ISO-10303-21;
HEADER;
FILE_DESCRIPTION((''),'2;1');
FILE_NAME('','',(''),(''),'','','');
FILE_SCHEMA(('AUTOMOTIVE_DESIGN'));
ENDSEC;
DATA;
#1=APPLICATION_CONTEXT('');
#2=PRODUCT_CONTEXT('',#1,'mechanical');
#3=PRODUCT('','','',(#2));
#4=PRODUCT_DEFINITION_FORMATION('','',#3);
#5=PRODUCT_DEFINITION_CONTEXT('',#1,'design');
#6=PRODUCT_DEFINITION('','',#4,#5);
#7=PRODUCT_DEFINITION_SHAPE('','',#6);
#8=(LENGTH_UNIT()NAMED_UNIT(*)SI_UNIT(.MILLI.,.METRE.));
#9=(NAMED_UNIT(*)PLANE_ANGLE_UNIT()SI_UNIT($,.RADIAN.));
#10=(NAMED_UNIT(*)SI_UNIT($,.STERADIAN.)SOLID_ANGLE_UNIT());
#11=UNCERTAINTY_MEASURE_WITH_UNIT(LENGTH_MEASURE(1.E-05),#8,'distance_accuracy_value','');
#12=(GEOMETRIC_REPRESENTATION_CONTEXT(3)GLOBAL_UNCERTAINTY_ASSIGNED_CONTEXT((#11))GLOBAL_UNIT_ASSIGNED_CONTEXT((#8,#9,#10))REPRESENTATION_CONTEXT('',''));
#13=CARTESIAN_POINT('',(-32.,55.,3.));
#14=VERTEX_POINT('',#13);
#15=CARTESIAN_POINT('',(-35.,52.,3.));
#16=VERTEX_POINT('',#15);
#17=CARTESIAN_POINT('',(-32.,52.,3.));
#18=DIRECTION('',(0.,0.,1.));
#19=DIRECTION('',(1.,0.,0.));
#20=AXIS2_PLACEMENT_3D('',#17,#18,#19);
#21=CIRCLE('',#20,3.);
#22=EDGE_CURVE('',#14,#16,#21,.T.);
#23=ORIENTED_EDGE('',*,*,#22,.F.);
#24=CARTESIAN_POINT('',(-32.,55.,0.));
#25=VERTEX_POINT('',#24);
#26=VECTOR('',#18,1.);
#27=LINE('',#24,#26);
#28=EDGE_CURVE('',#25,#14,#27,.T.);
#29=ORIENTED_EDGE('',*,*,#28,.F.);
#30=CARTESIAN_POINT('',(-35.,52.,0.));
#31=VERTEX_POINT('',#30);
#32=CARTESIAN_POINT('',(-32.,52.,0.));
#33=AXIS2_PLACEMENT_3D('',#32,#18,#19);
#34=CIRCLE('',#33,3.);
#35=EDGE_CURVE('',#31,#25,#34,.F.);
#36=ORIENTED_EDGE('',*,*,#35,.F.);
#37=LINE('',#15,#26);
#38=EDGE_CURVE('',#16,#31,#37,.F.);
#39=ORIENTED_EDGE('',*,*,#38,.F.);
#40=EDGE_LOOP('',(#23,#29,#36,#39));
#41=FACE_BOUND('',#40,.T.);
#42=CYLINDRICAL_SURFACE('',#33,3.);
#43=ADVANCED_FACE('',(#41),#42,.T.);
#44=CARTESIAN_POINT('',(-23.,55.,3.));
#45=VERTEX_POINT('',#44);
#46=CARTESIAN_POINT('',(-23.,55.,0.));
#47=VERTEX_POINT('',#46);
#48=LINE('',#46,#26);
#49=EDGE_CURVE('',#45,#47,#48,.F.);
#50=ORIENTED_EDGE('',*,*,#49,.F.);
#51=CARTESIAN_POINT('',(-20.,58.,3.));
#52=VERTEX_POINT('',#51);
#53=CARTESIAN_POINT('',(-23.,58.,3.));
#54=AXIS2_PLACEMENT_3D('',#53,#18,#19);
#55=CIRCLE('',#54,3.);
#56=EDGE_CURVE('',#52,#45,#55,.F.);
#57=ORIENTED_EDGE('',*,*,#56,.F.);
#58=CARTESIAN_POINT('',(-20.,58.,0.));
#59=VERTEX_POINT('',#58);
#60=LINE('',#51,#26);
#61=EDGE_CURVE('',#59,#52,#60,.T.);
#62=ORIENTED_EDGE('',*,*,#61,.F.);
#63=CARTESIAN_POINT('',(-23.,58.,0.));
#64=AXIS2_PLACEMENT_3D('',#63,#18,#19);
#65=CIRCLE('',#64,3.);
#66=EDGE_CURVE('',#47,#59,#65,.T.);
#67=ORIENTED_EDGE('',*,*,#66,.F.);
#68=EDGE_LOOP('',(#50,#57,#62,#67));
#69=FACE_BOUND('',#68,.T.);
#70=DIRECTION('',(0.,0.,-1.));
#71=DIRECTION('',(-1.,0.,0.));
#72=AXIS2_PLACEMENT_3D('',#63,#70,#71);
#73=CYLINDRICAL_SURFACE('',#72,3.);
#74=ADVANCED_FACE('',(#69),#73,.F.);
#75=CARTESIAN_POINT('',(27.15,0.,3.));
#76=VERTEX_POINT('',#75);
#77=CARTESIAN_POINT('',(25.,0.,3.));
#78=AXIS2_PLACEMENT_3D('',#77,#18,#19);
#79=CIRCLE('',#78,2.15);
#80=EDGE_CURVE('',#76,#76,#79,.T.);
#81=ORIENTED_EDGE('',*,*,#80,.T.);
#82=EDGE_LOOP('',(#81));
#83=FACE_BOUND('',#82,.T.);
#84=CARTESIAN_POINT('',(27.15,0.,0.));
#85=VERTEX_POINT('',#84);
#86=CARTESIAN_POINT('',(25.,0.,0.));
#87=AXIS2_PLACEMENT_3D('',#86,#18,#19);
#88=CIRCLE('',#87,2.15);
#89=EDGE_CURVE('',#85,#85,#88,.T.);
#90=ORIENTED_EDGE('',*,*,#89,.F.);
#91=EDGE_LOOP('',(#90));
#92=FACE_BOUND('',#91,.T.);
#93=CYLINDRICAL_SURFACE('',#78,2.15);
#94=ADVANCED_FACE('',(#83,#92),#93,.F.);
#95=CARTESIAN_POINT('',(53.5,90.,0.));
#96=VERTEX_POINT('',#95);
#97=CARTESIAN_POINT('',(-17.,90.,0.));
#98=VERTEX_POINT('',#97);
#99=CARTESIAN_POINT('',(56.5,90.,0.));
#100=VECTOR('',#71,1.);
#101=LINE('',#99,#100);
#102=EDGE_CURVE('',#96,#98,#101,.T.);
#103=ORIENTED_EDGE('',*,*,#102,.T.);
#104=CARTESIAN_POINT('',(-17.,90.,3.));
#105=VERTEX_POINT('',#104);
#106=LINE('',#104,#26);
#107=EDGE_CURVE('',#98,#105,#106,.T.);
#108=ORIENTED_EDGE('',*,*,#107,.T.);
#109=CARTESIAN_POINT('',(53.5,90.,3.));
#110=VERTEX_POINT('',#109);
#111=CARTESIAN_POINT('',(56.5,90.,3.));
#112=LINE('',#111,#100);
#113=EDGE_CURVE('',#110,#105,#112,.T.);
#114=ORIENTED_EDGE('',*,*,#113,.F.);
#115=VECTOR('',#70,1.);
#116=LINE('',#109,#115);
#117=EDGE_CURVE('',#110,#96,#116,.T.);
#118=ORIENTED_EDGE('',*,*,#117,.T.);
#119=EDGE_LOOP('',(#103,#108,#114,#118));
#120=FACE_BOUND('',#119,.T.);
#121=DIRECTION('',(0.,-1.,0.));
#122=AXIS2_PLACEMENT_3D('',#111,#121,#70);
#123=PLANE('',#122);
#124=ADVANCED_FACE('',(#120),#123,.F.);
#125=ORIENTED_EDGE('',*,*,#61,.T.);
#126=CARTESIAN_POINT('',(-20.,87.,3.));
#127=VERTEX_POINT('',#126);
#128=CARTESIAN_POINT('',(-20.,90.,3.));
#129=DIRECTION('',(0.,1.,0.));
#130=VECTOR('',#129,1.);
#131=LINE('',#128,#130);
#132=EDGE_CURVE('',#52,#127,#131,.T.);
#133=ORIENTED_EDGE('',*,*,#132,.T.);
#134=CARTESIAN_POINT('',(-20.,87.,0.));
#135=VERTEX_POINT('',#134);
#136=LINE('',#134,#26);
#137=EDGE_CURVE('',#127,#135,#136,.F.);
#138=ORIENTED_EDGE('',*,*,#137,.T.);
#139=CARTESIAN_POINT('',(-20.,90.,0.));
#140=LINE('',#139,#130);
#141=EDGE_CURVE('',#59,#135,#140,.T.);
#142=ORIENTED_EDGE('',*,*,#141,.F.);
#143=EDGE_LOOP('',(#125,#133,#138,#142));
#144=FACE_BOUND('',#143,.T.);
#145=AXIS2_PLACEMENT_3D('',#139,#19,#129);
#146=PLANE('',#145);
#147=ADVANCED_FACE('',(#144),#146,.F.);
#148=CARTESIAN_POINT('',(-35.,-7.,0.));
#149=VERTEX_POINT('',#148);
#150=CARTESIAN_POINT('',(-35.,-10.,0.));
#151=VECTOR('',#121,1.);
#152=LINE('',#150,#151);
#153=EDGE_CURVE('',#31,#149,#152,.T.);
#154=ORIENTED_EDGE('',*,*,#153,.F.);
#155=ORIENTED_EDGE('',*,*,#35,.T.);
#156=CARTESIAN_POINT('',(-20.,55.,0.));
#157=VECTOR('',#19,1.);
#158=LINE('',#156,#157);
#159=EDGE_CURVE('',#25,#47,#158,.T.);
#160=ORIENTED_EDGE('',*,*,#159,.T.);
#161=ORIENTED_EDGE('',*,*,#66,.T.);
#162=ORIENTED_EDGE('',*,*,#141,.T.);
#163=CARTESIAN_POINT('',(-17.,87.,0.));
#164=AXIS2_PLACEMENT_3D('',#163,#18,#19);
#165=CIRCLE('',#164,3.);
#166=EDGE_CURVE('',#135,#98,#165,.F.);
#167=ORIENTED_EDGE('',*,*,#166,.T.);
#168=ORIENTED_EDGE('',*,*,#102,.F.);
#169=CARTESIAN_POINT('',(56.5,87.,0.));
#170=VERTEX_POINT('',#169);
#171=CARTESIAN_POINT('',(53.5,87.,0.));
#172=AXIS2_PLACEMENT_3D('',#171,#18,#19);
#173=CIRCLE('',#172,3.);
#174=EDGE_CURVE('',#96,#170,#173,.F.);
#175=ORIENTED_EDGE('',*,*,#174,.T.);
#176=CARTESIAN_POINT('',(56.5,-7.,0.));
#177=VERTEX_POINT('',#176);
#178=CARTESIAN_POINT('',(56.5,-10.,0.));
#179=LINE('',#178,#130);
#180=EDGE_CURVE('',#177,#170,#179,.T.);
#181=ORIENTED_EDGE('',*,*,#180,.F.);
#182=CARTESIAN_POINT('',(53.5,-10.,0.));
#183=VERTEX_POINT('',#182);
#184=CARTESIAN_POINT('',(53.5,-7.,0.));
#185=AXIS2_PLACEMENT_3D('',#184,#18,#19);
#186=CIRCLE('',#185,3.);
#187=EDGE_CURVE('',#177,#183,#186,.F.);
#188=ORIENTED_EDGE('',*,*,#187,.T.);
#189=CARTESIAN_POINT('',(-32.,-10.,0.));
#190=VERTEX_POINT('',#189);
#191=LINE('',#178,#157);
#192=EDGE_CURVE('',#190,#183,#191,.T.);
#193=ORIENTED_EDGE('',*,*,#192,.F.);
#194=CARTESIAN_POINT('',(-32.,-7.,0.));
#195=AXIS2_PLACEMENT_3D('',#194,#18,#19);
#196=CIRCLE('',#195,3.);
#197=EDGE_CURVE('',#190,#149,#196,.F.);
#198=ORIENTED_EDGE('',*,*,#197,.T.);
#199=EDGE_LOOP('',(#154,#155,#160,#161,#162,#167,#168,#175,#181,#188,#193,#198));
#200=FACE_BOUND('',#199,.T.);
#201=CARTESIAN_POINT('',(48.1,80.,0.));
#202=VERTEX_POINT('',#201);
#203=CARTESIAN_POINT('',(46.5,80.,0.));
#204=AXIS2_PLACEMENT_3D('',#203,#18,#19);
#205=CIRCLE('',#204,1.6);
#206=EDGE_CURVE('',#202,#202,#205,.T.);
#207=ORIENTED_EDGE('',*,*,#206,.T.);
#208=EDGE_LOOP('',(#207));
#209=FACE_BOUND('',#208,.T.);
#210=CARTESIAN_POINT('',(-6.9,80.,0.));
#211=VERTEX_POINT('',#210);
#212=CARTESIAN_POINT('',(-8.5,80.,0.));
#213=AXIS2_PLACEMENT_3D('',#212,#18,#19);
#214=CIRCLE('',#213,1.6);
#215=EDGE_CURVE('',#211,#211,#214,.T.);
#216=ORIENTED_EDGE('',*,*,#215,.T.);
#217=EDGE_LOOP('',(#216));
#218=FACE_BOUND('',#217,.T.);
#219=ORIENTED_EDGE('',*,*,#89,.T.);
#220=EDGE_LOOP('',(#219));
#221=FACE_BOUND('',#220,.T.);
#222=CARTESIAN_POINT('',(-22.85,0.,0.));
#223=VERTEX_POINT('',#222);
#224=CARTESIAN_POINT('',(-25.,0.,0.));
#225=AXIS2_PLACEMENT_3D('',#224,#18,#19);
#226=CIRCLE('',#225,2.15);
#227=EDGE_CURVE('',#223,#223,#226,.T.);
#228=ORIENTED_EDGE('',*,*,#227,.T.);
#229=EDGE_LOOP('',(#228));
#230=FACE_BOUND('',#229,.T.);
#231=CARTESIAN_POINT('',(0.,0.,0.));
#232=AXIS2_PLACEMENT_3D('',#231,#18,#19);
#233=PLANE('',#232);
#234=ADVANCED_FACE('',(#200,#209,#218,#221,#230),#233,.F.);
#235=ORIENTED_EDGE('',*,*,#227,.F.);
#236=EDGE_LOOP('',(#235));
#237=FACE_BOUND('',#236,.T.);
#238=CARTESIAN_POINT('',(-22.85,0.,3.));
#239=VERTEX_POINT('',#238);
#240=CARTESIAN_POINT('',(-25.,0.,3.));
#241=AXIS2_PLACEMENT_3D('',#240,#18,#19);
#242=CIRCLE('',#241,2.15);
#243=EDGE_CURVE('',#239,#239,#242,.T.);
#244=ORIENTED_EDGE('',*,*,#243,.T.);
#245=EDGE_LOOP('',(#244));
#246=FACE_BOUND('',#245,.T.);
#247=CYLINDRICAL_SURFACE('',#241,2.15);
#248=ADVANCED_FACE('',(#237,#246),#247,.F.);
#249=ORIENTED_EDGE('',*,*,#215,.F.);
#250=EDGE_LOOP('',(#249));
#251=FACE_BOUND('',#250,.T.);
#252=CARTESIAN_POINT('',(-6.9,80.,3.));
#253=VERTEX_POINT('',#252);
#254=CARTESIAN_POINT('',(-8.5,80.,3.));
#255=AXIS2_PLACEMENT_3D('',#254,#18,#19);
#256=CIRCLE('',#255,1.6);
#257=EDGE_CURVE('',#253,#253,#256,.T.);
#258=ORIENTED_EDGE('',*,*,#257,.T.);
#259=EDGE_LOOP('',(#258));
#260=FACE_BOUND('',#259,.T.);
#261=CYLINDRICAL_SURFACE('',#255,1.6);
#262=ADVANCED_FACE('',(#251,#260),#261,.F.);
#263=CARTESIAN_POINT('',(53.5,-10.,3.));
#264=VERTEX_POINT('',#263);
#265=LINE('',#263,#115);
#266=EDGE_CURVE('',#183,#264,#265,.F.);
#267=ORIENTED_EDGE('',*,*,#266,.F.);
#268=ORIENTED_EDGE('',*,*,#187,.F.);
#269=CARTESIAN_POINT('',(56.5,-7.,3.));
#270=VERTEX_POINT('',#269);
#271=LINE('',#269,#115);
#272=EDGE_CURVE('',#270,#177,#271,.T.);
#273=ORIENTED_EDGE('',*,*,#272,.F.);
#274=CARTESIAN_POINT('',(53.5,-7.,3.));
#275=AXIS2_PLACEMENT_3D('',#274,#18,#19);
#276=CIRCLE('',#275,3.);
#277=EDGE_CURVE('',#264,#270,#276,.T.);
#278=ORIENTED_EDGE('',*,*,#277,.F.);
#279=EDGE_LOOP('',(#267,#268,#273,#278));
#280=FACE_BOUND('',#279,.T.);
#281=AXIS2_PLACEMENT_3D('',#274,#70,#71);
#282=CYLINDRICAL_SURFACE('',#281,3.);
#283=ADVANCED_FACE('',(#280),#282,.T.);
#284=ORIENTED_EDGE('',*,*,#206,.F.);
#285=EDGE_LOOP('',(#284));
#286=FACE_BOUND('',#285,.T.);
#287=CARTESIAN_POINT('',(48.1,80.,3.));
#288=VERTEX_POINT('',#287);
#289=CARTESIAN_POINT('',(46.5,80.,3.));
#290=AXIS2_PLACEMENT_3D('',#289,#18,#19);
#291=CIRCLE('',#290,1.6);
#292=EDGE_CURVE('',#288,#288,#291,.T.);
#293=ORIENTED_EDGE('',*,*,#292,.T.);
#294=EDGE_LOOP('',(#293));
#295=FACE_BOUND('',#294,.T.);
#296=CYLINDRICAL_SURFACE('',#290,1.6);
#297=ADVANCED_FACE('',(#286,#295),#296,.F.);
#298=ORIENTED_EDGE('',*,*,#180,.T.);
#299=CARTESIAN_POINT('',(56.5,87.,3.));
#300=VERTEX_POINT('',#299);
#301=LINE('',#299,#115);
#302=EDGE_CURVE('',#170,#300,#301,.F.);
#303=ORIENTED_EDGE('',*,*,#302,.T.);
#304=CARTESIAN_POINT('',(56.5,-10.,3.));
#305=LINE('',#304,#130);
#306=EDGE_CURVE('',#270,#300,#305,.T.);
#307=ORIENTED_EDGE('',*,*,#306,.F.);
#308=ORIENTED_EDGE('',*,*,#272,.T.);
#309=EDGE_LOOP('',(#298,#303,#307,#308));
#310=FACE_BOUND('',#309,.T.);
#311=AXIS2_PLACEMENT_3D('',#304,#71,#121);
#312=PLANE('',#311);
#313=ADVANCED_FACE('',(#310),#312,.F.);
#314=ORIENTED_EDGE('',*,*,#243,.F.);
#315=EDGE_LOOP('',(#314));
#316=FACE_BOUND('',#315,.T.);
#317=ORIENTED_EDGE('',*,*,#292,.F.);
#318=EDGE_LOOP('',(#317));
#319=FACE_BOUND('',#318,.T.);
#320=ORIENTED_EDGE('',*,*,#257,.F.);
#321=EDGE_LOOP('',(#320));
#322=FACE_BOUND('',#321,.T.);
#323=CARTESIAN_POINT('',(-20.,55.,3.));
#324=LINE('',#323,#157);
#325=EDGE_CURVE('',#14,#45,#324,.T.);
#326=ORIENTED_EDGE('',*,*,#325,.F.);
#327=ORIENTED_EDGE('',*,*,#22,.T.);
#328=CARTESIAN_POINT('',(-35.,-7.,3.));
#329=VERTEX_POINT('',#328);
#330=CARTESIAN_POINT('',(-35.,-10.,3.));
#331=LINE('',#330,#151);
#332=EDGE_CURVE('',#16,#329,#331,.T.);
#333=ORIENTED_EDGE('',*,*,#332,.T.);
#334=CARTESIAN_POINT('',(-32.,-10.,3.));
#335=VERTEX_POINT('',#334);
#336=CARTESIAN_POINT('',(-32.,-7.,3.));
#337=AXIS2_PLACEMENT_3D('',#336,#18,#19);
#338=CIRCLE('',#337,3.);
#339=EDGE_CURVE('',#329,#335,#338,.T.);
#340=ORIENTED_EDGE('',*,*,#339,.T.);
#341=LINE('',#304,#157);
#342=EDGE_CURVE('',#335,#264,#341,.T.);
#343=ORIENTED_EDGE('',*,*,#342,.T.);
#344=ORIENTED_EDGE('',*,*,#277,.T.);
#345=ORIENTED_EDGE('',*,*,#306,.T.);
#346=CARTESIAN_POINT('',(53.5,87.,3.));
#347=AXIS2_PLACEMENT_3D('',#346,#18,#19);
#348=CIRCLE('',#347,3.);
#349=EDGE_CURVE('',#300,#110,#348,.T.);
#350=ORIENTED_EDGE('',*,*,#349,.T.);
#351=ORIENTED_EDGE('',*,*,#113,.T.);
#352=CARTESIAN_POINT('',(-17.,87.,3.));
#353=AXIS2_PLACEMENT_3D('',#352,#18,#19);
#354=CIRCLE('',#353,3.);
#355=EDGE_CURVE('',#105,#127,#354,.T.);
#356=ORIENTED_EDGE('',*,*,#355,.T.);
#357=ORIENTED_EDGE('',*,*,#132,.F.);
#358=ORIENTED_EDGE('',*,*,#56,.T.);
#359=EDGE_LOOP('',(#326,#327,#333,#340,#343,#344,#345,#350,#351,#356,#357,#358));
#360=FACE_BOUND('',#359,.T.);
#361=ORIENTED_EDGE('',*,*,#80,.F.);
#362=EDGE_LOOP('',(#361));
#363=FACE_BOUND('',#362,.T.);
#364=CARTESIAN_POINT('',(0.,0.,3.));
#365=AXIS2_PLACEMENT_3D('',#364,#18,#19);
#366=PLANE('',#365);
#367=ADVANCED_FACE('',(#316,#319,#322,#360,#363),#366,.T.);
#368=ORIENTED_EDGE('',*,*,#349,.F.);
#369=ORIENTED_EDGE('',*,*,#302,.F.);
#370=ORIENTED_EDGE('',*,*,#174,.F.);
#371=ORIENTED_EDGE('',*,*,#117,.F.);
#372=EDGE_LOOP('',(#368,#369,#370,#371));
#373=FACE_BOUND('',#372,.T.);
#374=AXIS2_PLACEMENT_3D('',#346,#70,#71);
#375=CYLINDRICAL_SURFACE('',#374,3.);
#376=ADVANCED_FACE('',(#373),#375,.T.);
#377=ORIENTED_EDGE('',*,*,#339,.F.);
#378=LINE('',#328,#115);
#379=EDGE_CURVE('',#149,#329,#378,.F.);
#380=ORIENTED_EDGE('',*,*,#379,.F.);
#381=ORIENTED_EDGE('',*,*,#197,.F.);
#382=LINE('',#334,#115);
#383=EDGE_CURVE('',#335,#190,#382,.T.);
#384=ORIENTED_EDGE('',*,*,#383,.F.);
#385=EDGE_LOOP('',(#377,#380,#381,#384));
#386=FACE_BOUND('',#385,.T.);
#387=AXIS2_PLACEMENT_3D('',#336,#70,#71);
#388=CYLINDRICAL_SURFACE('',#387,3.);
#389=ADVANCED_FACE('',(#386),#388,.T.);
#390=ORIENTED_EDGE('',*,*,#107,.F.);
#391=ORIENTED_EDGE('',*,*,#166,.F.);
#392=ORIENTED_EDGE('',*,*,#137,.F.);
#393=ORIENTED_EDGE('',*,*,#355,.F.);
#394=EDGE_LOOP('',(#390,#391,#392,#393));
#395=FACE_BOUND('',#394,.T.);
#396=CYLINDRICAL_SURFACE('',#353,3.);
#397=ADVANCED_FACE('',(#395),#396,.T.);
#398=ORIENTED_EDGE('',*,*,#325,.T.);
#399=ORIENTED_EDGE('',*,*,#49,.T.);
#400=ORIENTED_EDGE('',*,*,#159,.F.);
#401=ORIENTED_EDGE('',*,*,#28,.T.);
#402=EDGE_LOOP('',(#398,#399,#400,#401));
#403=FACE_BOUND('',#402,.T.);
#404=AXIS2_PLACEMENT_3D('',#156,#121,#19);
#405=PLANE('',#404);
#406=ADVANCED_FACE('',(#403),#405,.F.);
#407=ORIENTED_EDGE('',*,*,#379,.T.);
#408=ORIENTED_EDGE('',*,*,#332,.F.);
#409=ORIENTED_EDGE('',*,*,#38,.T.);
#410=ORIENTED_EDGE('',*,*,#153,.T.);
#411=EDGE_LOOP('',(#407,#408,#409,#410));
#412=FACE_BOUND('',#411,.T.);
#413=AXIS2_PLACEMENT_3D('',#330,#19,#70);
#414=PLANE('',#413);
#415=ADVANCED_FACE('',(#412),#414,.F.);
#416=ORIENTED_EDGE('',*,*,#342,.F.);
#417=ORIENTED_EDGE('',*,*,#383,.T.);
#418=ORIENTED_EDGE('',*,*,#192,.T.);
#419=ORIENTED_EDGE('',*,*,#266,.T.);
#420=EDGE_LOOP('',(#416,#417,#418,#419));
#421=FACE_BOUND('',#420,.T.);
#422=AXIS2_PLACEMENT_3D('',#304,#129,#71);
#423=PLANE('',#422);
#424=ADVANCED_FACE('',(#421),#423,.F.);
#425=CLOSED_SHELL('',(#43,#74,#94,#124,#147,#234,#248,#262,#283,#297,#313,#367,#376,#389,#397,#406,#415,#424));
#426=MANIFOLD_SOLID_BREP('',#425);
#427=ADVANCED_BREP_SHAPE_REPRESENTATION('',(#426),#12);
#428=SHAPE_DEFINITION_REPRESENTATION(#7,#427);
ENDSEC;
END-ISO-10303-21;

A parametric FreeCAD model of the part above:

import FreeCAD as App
import Part
import Sketcher


def edges_at(feature, points):
    """Names of the edges that pass closest to the given points."""
    edges = feature.Shape.Edges
    near = lambda p: min(range(len(edges)), key=lambda i: edges[i].distToShape(Part.Vertex(*p))[0])
    return sorted({f"Edge{near(p) + 1}" for p in points})

doc = App.newDocument("Part")
body = doc.addObject("PartDesign::Body", "Body")

sketch1 = body.newObject("Sketcher::SketchObject", "Sketch")
sketch1.AttachmentSupport = (doc.getObject("XY_Plane"), [""])
sketch1.MapMode = "FlatFace"
sketch1.addGeometry([
    Part.LineSegment(App.Vector(-35, 90, 0), App.Vector(-35, -10, 0)),
    Part.LineSegment(App.Vector(-35, -10, 0), App.Vector(56, -10, 0)),
    Part.LineSegment(App.Vector(56, -10, 0), App.Vector(56, 90, 0)),
    Part.LineSegment(App.Vector(56, 90, 0), App.Vector(-35, 90, 0)),
], False)
sketch1.addConstraint([
    Sketcher.Constraint("Coincident", 0, 2, 1, 1),
    Sketcher.Constraint("Coincident", 1, 2, 2, 1),
    Sketcher.Constraint("Coincident", 2, 2, 3, 1),
    Sketcher.Constraint("Coincident", 3, 2, 0, 1),
    Sketcher.Constraint("Vertical", 0),
    Sketcher.Constraint("Horizontal", 1),
    Sketcher.Constraint("Vertical", 2),
    Sketcher.Constraint("Horizontal", 3),
    Sketcher.Constraint("DistanceY", 0, 2, 0, 1, 100.0),
    Sketcher.Constraint("DistanceX", 1, 1, 1, 2, 91.5),
    Sketcher.Constraint("DistanceX", 0, 2, -1, 1, 35.0),
    Sketcher.Constraint("DistanceY", 0, 2, -1, 1, 10.0),
])
pad1 = body.newObject("PartDesign::Pad", "Pad")
pad1.Profile = sketch1
pad1.Length = 3

sketch2 = body.newObject("Sketcher::SketchObject", "Sketch001")
sketch2.AttachmentSupport = (doc.getObject("XY_Plane"), [""])
sketch2.MapMode = "FlatFace"
sketch2.AttachmentOffset = App.Placement(App.Vector(0, 0, 3), App.Rotation())
sketch2.addGeometry([
    Part.Circle(App.Vector(-25, 0, 0), App.Vector(0, 0, 1), 2.1),
    Part.Circle(App.Vector(25, 0, 0), App.Vector(0, 0, 1), 2.1),
], False)
sketch2.addConstraint([
    Sketcher.Constraint("Equal", 0, 1),
    Sketcher.Constraint("Symmetric", 0, 3, 1, 3, -1, 1),
    Sketcher.Constraint("PointOnObject", 0, 3, -1),
    Sketcher.Constraint("Diameter", 0, 4.3),
    Sketcher.Constraint("DistanceX", 0, 3, -1, 1, 25.0),
])
doc.recompute()
hole = body.newObject("PartDesign::Hole", "Hole")
hole.Profile = sketch2
hole.ThreadType = "None"
hole.Diameter = 4.3
hole.DepthType = "ThroughAll"

sketch3 = body.newObject("Sketcher::SketchObject", "Sketch002")
sketch3.AttachmentSupport = (doc.getObject("XY_Plane"), [""])
sketch3.MapMode = "FlatFace"
sketch3.AttachmentOffset = App.Placement(App.Vector(0, 0, 3), App.Rotation())
sketch3.addGeometry([
    Part.Circle(App.Vector(-8.5, 80, 0), App.Vector(0, 0, 1), 1.6),
    Part.Circle(App.Vector(46.5, 80, 0), App.Vector(0, 0, 1), 1.6),
], False)
sketch3.addConstraint([
    Sketcher.Constraint("Equal", 0, 1),
    Sketcher.Constraint("Horizontal", 0, 3, 1, 3),
    Sketcher.Constraint("Diameter", 0, 3.2),
    Sketcher.Constraint("DistanceY", -1, 1, 0, 3, 80.0),
    Sketcher.Constraint("DistanceX", 0, 3, 1, 3, 55.0),
    Sketcher.Constraint("DistanceX", 0, 3, -1, 1, 8.5),
])
doc.recompute()
hole2 = body.newObject("PartDesign::Hole", "Hole001")
hole2.Profile = sketch3
hole2.ThreadType = "None"
hole2.Diameter = 3.2
hole2.DepthType = "ThroughAll"

sketch4 = body.newObject("Sketcher::SketchObject", "Sketch003")
sketch4.AttachmentSupport = (doc.getObject("XY_Plane"), [""])
sketch4.MapMode = "FlatFace"
sketch4.AttachmentOffset = App.Placement(App.Vector(0, 0, 3), App.Rotation())
sketch4.addGeometry([
    Part.LineSegment(App.Vector(-35, 90, 0), App.Vector(-35, 55, 0)),
    Part.LineSegment(App.Vector(-35, 55, 0), App.Vector(-20, 55, 0)),
    Part.LineSegment(App.Vector(-20, 55, 0), App.Vector(-20, 90, 0)),
    Part.LineSegment(App.Vector(-20, 90, 0), App.Vector(-35, 90, 0)),
], False)
sketch4.addConstraint([
    Sketcher.Constraint("Coincident", 0, 2, 1, 1),
    Sketcher.Constraint("Coincident", 1, 2, 2, 1),
    Sketcher.Constraint("Coincident", 2, 2, 3, 1),
    Sketcher.Constraint("Coincident", 3, 2, 0, 1),
    Sketcher.Constraint("Vertical", 0),
    Sketcher.Constraint("Horizontal", 1),
    Sketcher.Constraint("Vertical", 2),
    Sketcher.Constraint("Horizontal", 3),
    Sketcher.Constraint("DistanceX", 1, 1, 1, 2, 15.0),
    Sketcher.Constraint("DistanceY", 0, 2, 0, 1, 35.0),
    Sketcher.Constraint("DistanceX", 0, 2, -1, 1, 35.0),
    Sketcher.Constraint("DistanceY", -1, 1, 0, 2, 55.0),
])
pocket1 = body.newObject("PartDesign::Pocket", "Pocket")
pocket1.Profile = sketch4
pocket1.Type = "ThroughAll"
doc.recompute()

fillet = body.newObject("PartDesign::Fillet", "Fillet")
fillet.Base = (pocket1, edges_at(pocket1, [
    (-20, 90, 1.5),
    (-20, 55, 1.5),
    (-35, 55, 1.5),
    (56.5, 90, 1.5),
    (56.5, -10, 1.5),
    (-35, -10, 1.5),
]))
fillet.Radius = 3

doc.recompute()
